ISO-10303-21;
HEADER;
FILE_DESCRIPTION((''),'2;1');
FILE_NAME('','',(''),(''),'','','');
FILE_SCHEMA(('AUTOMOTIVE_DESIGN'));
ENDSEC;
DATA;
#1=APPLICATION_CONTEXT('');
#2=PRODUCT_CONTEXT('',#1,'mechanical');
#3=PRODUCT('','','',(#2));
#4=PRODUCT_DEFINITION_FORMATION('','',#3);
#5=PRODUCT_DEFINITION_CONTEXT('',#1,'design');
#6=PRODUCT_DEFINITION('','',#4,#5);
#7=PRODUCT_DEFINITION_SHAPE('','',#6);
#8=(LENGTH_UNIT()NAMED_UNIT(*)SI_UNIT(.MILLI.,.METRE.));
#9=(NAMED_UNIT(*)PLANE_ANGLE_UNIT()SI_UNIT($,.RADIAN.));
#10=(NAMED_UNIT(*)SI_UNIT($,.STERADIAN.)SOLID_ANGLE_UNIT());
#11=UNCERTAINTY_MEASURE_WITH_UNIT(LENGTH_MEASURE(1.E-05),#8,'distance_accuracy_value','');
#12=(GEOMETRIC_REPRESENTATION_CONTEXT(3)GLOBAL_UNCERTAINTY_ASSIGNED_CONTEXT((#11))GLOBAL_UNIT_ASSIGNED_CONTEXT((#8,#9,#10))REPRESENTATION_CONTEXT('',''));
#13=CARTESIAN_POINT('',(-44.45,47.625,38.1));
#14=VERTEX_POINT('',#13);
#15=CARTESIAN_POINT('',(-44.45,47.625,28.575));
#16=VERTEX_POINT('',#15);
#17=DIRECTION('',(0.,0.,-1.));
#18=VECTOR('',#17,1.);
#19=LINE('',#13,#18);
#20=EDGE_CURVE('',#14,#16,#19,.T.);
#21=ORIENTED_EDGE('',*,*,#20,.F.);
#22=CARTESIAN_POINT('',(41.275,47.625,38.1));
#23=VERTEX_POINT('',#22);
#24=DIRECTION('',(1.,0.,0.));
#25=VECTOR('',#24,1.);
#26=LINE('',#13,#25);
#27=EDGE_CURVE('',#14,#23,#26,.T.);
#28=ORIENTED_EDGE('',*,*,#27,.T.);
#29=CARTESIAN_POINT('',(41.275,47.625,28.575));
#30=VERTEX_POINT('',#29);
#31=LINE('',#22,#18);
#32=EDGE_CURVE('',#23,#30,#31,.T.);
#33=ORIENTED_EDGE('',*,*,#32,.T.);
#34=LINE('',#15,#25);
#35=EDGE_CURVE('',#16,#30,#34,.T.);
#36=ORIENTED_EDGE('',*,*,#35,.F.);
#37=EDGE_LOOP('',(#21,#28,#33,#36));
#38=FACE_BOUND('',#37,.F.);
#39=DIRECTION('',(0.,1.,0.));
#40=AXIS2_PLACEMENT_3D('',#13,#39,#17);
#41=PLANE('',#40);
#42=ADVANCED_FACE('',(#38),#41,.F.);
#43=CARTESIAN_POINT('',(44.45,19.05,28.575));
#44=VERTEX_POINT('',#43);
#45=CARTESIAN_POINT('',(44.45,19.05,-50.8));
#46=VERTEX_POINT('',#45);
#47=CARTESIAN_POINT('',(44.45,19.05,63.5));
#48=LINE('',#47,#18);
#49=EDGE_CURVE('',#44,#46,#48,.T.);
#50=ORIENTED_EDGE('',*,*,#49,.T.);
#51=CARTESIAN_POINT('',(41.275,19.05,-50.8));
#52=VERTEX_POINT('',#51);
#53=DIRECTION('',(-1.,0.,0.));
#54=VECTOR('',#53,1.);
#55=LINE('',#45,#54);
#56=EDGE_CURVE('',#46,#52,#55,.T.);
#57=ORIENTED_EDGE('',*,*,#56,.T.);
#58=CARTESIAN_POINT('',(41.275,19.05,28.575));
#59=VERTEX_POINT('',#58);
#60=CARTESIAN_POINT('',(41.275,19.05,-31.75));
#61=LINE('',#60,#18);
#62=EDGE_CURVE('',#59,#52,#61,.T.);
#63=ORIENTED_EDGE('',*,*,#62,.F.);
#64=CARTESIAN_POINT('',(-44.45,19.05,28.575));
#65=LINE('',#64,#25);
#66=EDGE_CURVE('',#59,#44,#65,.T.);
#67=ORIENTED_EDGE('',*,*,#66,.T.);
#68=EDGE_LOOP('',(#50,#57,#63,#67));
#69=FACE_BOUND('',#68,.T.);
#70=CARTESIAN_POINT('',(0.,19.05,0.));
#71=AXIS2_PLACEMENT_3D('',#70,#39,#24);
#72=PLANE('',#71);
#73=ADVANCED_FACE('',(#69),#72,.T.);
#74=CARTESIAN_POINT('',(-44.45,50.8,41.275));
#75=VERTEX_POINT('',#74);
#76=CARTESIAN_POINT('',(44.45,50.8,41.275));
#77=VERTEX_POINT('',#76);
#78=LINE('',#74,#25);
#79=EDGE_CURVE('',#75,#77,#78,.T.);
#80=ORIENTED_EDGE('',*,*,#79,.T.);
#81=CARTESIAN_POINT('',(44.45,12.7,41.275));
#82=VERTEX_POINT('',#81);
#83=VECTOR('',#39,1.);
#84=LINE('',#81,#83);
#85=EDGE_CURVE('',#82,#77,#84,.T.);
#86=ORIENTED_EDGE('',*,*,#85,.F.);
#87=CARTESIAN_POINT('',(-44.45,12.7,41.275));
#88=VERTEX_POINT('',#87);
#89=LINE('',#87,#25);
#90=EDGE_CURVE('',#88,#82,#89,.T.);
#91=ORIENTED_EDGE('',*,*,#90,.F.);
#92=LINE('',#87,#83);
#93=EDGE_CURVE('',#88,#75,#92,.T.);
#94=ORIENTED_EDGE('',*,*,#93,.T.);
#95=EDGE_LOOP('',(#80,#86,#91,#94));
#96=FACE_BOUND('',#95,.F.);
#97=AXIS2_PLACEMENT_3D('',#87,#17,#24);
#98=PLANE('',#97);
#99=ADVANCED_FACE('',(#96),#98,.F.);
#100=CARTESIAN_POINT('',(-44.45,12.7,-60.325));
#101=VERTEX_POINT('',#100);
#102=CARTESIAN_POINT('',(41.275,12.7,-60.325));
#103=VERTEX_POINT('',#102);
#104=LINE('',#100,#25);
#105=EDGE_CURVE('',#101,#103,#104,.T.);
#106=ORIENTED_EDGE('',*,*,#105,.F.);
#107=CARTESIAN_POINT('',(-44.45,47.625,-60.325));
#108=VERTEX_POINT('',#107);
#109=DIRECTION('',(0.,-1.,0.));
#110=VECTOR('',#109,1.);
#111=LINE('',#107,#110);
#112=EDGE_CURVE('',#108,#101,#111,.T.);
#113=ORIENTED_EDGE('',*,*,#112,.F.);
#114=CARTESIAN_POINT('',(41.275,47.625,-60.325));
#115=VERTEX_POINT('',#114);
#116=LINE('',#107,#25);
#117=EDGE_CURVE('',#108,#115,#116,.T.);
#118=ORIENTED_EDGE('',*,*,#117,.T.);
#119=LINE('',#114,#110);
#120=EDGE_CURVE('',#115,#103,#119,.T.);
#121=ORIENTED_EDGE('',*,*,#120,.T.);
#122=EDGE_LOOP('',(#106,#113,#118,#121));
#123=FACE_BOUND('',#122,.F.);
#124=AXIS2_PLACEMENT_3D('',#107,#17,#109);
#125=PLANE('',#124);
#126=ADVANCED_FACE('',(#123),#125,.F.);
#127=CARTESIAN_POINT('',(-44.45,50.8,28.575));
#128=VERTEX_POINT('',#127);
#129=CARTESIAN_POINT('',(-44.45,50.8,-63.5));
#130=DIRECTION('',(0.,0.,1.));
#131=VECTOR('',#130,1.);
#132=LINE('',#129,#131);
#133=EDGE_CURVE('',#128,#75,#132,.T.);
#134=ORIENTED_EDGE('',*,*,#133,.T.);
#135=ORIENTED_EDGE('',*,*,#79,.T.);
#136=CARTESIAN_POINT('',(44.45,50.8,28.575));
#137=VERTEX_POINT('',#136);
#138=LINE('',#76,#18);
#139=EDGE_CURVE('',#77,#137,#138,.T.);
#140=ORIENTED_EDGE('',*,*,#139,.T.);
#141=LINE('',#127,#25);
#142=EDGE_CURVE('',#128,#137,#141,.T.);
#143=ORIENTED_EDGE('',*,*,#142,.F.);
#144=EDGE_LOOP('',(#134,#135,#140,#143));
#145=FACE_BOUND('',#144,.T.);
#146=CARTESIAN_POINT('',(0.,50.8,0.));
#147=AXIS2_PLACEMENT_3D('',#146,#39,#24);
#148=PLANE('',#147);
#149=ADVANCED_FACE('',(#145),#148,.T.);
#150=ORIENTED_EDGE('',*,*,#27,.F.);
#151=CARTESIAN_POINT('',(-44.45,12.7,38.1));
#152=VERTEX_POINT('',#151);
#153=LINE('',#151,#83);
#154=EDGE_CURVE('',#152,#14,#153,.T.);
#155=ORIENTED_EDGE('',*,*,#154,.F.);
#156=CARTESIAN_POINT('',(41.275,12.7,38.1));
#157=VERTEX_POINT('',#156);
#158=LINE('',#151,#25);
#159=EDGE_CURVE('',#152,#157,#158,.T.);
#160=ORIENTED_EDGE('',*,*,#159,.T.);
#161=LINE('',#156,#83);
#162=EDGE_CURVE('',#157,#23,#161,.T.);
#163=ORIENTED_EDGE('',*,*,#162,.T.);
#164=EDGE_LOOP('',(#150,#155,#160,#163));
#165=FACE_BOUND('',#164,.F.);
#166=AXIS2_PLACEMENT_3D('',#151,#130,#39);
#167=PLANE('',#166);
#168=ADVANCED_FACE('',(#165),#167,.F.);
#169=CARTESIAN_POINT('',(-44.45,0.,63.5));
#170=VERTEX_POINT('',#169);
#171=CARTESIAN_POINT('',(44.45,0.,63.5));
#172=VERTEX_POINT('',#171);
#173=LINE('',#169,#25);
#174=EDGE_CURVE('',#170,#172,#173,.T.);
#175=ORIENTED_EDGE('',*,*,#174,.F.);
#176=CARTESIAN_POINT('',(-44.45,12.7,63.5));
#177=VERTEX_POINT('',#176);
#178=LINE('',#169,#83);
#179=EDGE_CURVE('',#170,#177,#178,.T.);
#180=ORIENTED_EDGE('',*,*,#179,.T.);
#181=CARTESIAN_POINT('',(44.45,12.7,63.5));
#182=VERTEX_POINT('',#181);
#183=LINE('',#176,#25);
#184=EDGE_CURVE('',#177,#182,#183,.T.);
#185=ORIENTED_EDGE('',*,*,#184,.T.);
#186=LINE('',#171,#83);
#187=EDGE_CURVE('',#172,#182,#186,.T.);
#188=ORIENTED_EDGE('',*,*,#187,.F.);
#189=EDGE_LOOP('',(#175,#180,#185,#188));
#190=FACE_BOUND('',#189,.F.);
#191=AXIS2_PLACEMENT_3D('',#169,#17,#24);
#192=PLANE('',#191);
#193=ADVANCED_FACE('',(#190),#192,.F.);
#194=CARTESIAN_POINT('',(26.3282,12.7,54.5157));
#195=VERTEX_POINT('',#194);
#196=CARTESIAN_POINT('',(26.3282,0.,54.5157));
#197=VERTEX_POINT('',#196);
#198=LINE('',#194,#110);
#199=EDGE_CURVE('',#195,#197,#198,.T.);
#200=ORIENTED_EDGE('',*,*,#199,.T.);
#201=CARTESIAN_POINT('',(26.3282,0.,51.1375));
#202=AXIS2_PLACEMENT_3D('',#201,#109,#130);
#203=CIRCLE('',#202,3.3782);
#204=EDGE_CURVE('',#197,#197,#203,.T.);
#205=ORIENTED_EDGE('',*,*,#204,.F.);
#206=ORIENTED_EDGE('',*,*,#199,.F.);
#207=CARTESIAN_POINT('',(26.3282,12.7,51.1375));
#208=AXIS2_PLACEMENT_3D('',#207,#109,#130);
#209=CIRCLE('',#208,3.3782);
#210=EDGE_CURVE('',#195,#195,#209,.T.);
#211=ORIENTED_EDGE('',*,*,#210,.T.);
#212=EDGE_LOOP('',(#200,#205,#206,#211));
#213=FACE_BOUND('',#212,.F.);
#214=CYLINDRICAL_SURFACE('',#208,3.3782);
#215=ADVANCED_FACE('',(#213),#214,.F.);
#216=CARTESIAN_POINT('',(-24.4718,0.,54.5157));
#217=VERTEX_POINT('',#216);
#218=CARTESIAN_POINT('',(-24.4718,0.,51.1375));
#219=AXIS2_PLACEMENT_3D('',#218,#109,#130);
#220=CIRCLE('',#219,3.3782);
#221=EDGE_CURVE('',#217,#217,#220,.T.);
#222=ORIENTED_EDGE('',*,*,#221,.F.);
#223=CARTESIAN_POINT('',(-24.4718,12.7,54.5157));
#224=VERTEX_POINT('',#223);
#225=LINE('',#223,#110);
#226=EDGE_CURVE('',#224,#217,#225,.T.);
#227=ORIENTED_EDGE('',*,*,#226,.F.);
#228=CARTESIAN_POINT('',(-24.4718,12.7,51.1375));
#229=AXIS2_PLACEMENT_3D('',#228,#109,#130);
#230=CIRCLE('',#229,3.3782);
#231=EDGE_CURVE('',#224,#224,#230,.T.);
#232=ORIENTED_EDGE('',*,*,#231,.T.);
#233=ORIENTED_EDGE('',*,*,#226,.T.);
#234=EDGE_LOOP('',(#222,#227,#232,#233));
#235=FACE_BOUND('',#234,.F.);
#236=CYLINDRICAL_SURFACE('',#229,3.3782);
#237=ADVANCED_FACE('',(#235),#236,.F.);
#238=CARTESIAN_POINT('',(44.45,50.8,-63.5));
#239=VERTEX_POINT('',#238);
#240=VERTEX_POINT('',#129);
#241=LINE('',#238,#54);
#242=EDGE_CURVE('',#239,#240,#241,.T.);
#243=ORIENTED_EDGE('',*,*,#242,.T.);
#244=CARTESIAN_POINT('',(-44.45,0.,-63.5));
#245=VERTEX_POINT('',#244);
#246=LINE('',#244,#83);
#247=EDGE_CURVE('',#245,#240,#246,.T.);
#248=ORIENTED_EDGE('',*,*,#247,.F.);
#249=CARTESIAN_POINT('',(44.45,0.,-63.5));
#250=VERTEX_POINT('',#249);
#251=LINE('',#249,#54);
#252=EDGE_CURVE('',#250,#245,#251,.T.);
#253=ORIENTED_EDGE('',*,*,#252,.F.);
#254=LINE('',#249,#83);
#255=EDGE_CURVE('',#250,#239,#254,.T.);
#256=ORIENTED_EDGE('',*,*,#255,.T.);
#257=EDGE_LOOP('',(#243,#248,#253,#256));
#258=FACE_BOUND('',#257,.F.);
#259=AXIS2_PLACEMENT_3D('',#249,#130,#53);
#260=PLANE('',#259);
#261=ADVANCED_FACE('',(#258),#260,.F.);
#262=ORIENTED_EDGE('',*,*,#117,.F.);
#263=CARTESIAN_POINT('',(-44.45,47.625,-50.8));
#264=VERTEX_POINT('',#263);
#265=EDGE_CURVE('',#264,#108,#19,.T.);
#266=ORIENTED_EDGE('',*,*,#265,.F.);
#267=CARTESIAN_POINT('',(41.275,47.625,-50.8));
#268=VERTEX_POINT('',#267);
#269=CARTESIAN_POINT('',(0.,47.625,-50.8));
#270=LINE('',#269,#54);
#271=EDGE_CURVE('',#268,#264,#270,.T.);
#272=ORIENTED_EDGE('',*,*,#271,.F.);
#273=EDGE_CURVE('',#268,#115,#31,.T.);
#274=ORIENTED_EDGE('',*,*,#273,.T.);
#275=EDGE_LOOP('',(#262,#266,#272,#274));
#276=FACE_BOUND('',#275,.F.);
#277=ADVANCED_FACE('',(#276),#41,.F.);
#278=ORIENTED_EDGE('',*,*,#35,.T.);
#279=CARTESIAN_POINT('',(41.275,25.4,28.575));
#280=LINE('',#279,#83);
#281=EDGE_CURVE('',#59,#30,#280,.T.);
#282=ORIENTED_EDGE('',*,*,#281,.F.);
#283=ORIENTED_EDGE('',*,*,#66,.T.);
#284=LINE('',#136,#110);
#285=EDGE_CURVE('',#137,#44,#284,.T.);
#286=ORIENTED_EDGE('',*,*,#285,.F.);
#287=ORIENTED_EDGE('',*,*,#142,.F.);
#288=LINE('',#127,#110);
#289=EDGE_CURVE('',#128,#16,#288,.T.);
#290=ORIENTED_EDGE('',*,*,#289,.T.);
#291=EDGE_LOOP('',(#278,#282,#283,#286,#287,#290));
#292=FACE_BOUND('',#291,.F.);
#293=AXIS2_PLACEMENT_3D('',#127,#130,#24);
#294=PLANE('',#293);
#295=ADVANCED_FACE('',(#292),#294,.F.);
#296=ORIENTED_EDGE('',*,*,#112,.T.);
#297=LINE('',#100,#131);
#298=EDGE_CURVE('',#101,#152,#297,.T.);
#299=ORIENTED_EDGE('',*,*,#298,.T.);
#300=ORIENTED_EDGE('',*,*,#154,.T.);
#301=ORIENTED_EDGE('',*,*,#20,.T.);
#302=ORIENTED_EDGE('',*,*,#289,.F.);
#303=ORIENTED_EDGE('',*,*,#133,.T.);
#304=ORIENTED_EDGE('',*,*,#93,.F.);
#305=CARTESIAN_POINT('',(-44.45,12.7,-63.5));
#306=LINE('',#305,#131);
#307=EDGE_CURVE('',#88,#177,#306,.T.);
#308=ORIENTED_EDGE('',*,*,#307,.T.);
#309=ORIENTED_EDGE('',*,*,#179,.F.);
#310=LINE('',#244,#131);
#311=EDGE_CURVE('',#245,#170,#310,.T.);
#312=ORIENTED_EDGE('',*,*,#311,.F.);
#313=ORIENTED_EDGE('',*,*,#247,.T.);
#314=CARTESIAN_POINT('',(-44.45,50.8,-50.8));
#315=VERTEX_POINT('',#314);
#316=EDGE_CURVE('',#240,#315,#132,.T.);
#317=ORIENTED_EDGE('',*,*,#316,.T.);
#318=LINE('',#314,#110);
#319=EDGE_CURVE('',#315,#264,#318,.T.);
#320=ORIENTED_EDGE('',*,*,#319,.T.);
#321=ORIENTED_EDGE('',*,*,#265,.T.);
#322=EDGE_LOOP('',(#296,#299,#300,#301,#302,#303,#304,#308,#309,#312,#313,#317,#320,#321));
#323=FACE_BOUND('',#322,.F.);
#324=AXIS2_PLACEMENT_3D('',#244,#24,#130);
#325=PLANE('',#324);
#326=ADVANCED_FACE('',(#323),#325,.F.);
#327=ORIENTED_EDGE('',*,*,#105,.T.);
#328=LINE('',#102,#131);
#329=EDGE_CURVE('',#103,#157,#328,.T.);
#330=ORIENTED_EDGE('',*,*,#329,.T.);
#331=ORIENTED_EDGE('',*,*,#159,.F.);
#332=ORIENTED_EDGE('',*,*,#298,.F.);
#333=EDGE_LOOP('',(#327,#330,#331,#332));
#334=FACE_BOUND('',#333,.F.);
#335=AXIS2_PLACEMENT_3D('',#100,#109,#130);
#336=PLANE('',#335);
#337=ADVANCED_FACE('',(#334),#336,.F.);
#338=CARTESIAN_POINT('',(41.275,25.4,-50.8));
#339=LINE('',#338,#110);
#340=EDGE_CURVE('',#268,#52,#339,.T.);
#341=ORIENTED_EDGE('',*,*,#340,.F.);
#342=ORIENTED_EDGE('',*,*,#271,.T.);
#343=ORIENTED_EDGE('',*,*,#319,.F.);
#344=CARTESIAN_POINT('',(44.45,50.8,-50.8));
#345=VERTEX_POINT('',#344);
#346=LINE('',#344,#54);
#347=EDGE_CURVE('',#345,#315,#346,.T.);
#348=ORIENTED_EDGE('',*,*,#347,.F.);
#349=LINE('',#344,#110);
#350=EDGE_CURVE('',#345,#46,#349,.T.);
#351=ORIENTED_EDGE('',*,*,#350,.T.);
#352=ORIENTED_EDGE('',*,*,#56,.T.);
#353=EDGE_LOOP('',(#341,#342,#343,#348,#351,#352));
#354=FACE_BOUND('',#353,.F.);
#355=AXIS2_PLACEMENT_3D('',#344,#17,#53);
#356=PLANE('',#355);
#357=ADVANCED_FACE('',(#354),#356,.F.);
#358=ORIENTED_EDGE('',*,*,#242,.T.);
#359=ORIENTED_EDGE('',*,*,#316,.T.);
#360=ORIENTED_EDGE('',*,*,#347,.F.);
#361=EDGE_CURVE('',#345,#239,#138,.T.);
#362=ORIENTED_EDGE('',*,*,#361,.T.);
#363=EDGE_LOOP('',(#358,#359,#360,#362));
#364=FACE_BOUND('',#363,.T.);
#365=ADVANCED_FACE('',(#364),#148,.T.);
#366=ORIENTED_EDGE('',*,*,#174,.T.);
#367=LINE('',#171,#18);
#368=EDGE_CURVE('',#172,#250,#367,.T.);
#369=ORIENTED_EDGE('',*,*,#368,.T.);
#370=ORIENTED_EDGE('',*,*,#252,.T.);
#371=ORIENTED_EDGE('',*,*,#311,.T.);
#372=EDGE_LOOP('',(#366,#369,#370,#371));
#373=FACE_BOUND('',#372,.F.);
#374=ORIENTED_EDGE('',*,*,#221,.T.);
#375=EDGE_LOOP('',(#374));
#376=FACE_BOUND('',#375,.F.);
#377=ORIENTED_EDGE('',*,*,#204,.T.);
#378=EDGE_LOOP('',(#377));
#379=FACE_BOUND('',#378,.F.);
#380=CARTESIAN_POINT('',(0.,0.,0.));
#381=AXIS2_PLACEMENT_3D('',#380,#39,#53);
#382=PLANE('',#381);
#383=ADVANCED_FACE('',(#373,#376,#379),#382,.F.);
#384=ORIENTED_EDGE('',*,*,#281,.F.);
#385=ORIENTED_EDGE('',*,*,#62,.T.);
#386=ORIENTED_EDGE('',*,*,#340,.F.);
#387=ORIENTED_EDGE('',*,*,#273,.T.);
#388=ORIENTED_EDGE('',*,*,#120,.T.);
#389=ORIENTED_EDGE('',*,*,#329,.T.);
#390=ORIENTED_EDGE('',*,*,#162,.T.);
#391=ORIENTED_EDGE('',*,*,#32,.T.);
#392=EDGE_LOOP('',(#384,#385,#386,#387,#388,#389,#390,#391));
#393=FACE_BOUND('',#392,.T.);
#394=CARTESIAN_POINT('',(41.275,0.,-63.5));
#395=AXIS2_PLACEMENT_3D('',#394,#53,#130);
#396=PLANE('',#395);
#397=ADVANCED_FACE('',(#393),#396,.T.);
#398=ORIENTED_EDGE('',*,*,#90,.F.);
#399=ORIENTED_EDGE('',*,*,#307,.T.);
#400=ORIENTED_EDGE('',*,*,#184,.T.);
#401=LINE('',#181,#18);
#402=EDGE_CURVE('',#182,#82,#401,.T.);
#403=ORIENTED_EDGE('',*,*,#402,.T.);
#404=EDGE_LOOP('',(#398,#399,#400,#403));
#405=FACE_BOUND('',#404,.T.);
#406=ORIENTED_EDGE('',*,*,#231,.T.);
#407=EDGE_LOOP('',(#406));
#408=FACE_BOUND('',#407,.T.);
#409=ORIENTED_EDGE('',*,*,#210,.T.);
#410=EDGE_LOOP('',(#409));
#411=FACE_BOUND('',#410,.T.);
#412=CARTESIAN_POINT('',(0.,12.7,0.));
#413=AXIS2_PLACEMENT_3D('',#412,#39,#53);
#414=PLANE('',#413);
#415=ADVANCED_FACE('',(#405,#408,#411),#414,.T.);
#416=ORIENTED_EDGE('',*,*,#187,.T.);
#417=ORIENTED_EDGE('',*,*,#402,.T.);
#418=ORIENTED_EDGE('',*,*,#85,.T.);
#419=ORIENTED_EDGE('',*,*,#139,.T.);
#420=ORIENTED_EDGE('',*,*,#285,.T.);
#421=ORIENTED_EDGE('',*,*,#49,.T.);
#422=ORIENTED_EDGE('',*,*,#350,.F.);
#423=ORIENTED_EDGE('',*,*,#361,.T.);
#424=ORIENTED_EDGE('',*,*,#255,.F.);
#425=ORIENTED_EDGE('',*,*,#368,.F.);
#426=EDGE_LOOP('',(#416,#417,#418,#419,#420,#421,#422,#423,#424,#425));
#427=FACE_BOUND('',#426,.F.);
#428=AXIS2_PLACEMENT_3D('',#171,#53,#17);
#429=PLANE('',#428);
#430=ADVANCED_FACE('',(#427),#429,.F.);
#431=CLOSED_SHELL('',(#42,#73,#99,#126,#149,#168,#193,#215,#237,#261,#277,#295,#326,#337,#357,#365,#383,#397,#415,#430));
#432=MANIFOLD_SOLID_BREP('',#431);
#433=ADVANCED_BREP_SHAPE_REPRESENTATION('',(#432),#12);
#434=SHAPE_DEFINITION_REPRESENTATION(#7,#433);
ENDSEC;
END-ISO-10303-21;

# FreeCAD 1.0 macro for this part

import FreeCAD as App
import Part
import Sketcher
Q = App.Units.Quantity


def add_polygon(sketch, points):
    """Adds a closed chain of lines whose ends are joined by coincident constraints."""
    first, n = sketch.GeometryCount, len(points)
    for a, b in zip(points, points[1:] + points[:1]):
        sketch.addGeometry(Part.LineSegment(App.Vector(*a, 0), App.Vector(*b, 0)), False)
    for i in range(n):
        sketch.addConstraint(Sketcher.Constraint("Coincident", first + i, 2, first + (i + 1) % n, 1))

doc = App.newDocument("Part")
body = doc.addObject("PartDesign::Body", "Body")

sketch1 = body.newObject("Sketcher::SketchObject", "Sketch")
sketch1.AttachmentSupport = (doc.getObject("XZ_Plane"), [""])
sketch1.MapMode = "FlatFace"
add_polygon(sketch1, [(44, 64), (44, -64), (-44, -64), (-44, 64)])
sketch1.addConstraint(Sketcher.Constraint("Vertical", 0))
sketch1.addConstraint(Sketcher.Constraint("Horizontal", 1))
sketch1.addConstraint(Sketcher.Constraint("Vertical", 2))
sketch1.addConstraint(Sketcher.Constraint("Horizontal", 3))
sketch1.addConstraint(Sketcher.Constraint("Symmetric", 0, 2, 2, 2, -1, 1))
sketch1.addConstraint(Sketcher.Constraint("DistanceY", 0, 2, 0, 1, Q("5 in")))
sketch1.addConstraint(Sketcher.Constraint("DistanceX", 1, 2, 1, 1, Q("3.5 in")))
pad1 = body.newObject("PartDesign::Pad", "Pad")
pad1.Profile = sketch1
pad1.Length = Q("0.5 in")
pad1.Reversed = True

sketch2 = body.newObject("Sketcher::SketchObject", "Sketch001")
sketch2.AttachmentSupport = (doc.getObject("XZ_Plane"), [""])
sketch2.MapMode = "FlatFace"
sketch2.AttachmentOffset = App.Placement(App.Vector(0, 0, -0.5 * 25.4), App.Rotation())
add_polygon(sketch2, [(44, 41), (44, -64), (-44, -64), (-44, 41)])
sketch2.addConstraint(Sketcher.Constraint("Vertical", 0))
sketch2.addConstraint(Sketcher.Constraint("Horizontal", 1))
sketch2.addConstraint(Sketcher.Constraint("Vertical", 2))
sketch2.addConstraint(Sketcher.Constraint("Horizontal", 3))
sketch2.addConstraint(Sketcher.Constraint("DistanceY", 0, 2, 0, 1, Q("4.125 in")))
sketch2.addConstraint(Sketcher.Constraint("DistanceX", 1, 2, 1, 1, Q("3.5 in")))
sketch2.addConstraint(Sketcher.Constraint("DistanceY", 0, 2, -1, 1, Q("2.5 in")))
sketch2.addConstraint(Sketcher.Constraint("DistanceX", -1, 1, 0, 2, Q("1.75 in")))
pad2 = body.newObject("PartDesign::Pad", "Pad001")
pad2.Profile = sketch2
pad2.Length = Q("1.5 in")
pad2.Reversed = True

sketch3 = body.newObject("Sketcher::SketchObject", "Sketch002")
sketch3.AttachmentSupport = (doc.getObject("YZ_Plane"), [""])
sketch3.MapMode = "FlatFace"
sketch3.AttachmentOffset = App.Placement(App.Vector(0, 0, -1.75 * 25.4), App.Rotation())
add_polygon(sketch3, [(13, 38), (48, 38), (48, -60), (13, -60)])
sketch3.addConstraint(Sketcher.Constraint("Horizontal", 0))
sketch3.addConstraint(Sketcher.Constraint("Vertical", 1))
sketch3.addConstraint(Sketcher.Constraint("Horizontal", 2))
sketch3.addConstraint(Sketcher.Constraint("Vertical", 3))
sketch3.addConstraint(Sketcher.Constraint("DistanceX", -1, 1, 2, 2, Q("0.5 in")))
sketch3.addConstraint(Sketcher.Constraint("DistanceY", -1, 1, 0, 2, Q("1.5 in")))
sketch3.addConstraint(Sketcher.Constraint("DistanceX", 0, 1, 0, 2, Q("1.375 in")))
sketch3.addConstraint(Sketcher.Constraint("DistanceY", 1, 2, 1, 1, Q("3.875 in")))
pocket1 = body.newObject("PartDesign::Pocket", "Pocket")
pocket1.Profile = sketch3
pocket1.Length = Q("3.375 in")
pocket1.Reversed = True

sketch4 = body.newObject("Sketcher::SketchObject", "Sketch003")
sketch4.AttachmentSupport = (doc.getObject("XZ_Plane"), [""])
sketch4.MapMode = "FlatFace"
sketch4.AttachmentOffset = App.Placement(App.Vector(0, 0, -2 * 25.4), App.Rotation())
add_polygon(sketch4, [(44, -51), (-44, -51), (-44, 29), (44, 29)])
sketch4.addConstraint(Sketcher.Constraint("Horizontal", 0))
sketch4.addConstraint(Sketcher.Constraint("Vertical", 1))
sketch4.addConstraint(Sketcher.Constraint("Horizontal", 2))
sketch4.addConstraint(Sketcher.Constraint("Vertical", 3))
sketch4.addConstraint(Sketcher.Constraint("DistanceX", 0, 2, 0, 1, Q("3.5 in")))
sketch4.addConstraint(Sketcher.Constraint("DistanceY", 0, 2, -1, 1, Q("2 in")))
sketch4.addConstraint(Sketcher.Constraint("DistanceY", 1, 1, 1, 2, Q("3.125 in")))
sketch4.addConstraint(Sketcher.Constraint("DistanceX", 0, 2, -1, 1, Q("1.75 in")))
pocket2 = body.newObject("PartDesign::Pocket", "Pocket001")
pocket2.Profile = sketch4
pocket2.Length = Q("1.25 in")
pocket2.Reversed = True

sketch5 = body.newObject("Sketcher::SketchObject", "Sketch004")
sketch5.AttachmentSupport = (doc.getObject("XZ_Plane"), [""])
sketch5.MapMode = "FlatFace"
sketch5.AttachmentOffset = App.Placement(App.Vector(0, 0, -0.5 * 25.4), App.Rotation())
sketch5.addGeometry(Part.Circle(App.Vector(-24.5, 51.1, 0), App.Vector(0, 0, 1), 3.4), False)
sketch5.addGeometry(Part.Circle(App.Vector(26.3, 51.1, 0), App.Vector(0, 0, 1), 3.4), False)
sketch5.addConstraint(Sketcher.Constraint("Equal", 0, 1))
sketch5.addConstraint(Sketcher.Constraint("Horizontal", 0, 3, 1, 3))
sketch5.addConstraint(Sketcher.Constraint("Diameter", 0, Q("0.266 in")))
sketch5.addConstraint(Sketcher.Constraint("DistanceX", 0, 3, 1, 3, Q("2 in")))
sketch5.addConstraint(Sketcher.Constraint("DistanceX", 0, 3, -1, 1, Q("24.4718 mm")))
sketch5.addConstraint(Sketcher.Constraint("DistanceY", -1, 1, 0, 3, Q("51.1375 mm")))
doc.recompute()
hole = body.newObject("PartDesign::Hole", "Hole")
hole.Profile = sketch5
hole.ThreadType = "None"
hole.Diameter = Q("0.266 in")
hole.DepthType = "ThroughAll"
hole.Reversed = True

doc.recompute()
